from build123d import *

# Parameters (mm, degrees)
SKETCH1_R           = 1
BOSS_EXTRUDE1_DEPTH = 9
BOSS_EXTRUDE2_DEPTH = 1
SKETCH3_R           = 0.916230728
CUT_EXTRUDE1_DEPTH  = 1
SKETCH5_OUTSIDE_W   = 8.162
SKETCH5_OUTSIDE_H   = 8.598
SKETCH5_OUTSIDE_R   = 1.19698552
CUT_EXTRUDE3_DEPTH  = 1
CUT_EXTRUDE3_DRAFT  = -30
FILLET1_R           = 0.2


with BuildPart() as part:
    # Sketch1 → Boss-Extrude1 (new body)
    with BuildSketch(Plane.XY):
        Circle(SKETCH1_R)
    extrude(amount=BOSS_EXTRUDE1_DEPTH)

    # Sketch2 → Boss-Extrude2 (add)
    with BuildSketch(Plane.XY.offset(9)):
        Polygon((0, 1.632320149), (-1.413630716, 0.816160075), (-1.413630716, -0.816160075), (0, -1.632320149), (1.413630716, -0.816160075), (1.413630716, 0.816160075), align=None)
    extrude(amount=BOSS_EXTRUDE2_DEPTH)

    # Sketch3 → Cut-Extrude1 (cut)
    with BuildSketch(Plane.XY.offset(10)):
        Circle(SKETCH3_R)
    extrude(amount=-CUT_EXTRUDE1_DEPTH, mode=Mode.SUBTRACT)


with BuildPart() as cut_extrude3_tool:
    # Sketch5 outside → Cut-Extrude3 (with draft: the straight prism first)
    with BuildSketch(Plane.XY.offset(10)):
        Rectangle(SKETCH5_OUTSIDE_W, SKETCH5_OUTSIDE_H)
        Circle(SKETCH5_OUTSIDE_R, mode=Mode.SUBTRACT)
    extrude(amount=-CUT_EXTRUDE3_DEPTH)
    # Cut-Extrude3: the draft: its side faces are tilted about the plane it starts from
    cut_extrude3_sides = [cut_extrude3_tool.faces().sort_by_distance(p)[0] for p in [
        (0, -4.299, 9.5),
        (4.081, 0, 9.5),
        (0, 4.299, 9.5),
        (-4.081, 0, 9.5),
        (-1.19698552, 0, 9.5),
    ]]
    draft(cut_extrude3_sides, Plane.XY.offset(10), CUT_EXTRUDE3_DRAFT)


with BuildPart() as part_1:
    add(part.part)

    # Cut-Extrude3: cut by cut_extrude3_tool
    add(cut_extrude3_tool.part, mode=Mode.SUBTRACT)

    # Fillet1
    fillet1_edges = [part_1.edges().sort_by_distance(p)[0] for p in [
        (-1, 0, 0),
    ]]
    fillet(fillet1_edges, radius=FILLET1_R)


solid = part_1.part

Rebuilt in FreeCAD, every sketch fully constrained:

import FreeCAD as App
import Part
import Sketcher

V = App.Vector
Q = App.Units.Quantity


def edges_at(feature, points):
    """Names of the edges that pass closest to the given points."""
    edges = feature.Shape.Edges
    near = lambda p: min(range(len(edges)), key=lambda i: edges[i].distToShape(Part.Vertex(*p))[0])
    return sorted({f"Edge{near(p) + 1}" for p in points})


def faces_at(feature, points):
    """Names of the faces that lie closest to the given points."""
    faces = feature.Shape.Faces
    near = lambda p: min(range(len(faces)), key=lambda i: faces[i].distToShape(Part.Vertex(*p))[0])
    return sorted({f"Face{near(p) + 1}" for p in points})

doc = App.newDocument("Part")
body = doc.addObject("PartDesign::Body", "Body")

# Sketch on XY plane
sketch1 = body.newObject("Sketcher::SketchObject", "Sketch")
sketch1.AttachmentSupport = (doc.getObject("XY_Plane"), [""])
sketch1.MapMode = "FlatFace"
sketch1.addGeometry(Part.Circle(V(0, 0, 0), V(0, 0, 1), 1), False)
sketch1.addConstraint(Sketcher.Constraint("Coincident", 0, 3, -1, 1))
sketch1.addConstraint(Sketcher.Constraint("Diameter", 0, Q("2 mm")))
pad1 = body.newObject("PartDesign::Pad", "Pad")
pad1.Profile = sketch1
pad1.Length = 9

# Sketch on XY plane
sketch2 = body.newObject("Sketcher::SketchObject", "Sketch001")
sketch2.AttachmentSupport = (doc.getObject("XY_Plane"), [""])
sketch2.MapMode = "FlatFace"
sketch2.AttachmentOffset = App.Placement(V(0, 0, 9), App.Rotation())
sketch2.addGeometry(Part.LineSegment(V(0, 1.6, 0), V(-1.4, 0.8, 0)), False)
sketch2.addGeometry(Part.LineSegment(V(-1.4, 0.8, 0), V(-1.4, -0.8, 0)), False)
sketch2.addGeometry(Part.LineSegment(V(-1.4, -0.8, 0), V(0, -1.6, 0)), False)
sketch2.addGeometry(Part.LineSegment(V(0, -1.6, 0), V(1.4, -0.8, 0)), False)
sketch2.addGeometry(Part.LineSegment(V(1.4, -0.8, 0), V(1.4, 0.8, 0)), False)
sketch2.addGeometry(Part.LineSegment(V(1.4, 0.8, 0), V(0, 1.6, 0)), False)
sketch2.addConstraint(Sketcher.Constraint("Coincident", 0, 2, 1, 1))
sketch2.addConstraint(Sketcher.Constraint("Coincident", 1, 2, 2, 1))
sketch2.addConstraint(Sketcher.Constraint("Coincident", 2, 2, 3, 1))
sketch2.addConstraint(Sketcher.Constraint("Coincident", 3, 2, 4, 1))
sketch2.addConstraint(Sketcher.Constraint("Coincident", 4, 2, 5, 1))
sketch2.addConstraint(Sketcher.Constraint("Coincident", 5, 2, 0, 1))
sketch2.addConstraint(Sketcher.Constraint("Vertical", 1))
sketch2.addConstraint(Sketcher.Constraint("Vertical", 4))
sketch2.addConstraint(Sketcher.Constraint("Symmetric", 0, 2, 3, 2, -1, 1))
sketch2.addConstraint(Sketcher.Constraint("Symmetric", 2, 2, 5, 2, -1, 1))
sketch2.addConstraint(Sketcher.Constraint("PointOnObject", 2, 2, -2))
sketch2.addConstraint(Sketcher.Constraint("Parallel", 2, 5))
sketch2.addConstraint(Sketcher.Constraint("Horizontal", 1, 2, 3, 2))
sketch2.addConstraint(Sketcher.Constraint("Angle", 0, Q("-150 deg")))
sketch2.addConstraint(Sketcher.Constraint("DistanceY", 1, 2, 1, 1, Q("1.63232 mm")))
sketch2.addConstraint(Sketcher.Constraint("Distance", 0, Q("1.63232 mm")))
pad2 = body.newObject("PartDesign::Pad", "Pad001")
pad2.Profile = sketch2
pad2.Length = 1

# Sketch on XY plane
sketch3 = body.newObject("Sketcher::SketchObject", "Sketch002")
sketch3.AttachmentSupport = (doc.getObject("XY_Plane"), [""])
sketch3.MapMode = "FlatFace"
sketch3.AttachmentOffset = App.Placement(V(0, 0, 10), App.Rotation())
sketch3.addGeometry(Part.Circle(V(0, 0, 0), V(0, 0, 1), 0.9), False)
sketch3.addConstraint(Sketcher.Constraint("Coincident", 0, 3, -1, 1))
sketch3.addConstraint(Sketcher.Constraint("Diameter", 0, Q("1.832461 mm")))
pocket1 = body.newObject("PartDesign::Pocket", "Pocket")
pocket1.Profile = sketch3
pocket1.Length = 1
body2 = doc.addObject("PartDesign::Body", "Body001")

# Sketch on XY plane
sketch4 = body2.newObject("Sketcher::SketchObject", "Sketch003")
sketch4.AttachmentSupport = (doc.getObject("XY_Plane001"), [""])
sketch4.MapMode = "FlatFace"
sketch4.AttachmentOffset = App.Placement(V(0, 0, 10), App.Rotation())
sketch4.addGeometry(Part.LineSegment(V(-4.1, 4.3, 0), V(-4.1, -4.3, 0)), False)
sketch4.addGeometry(Part.LineSegment(V(-4.1, -4.3, 0), V(4.1, -4.3, 0)), False)
sketch4.addGeometry(Part.LineSegment(V(4.1, -4.3, 0), V(4.1, 4.3, 0)), False)
sketch4.addGeometry(Part.LineSegment(V(4.1, 4.3, 0), V(-4.1, 4.3, 0)), False)
sketch4.addGeometry(Part.Circle(V(0, 0, 0), V(0, 0, 1), 1.2), False)
sketch4.addConstraint(Sketcher.Constraint("Coincident", 0, 2, 1, 1))
sketch4.addConstraint(Sketcher.Constraint("Coincident", 1, 2, 2, 1))
sketch4.addConstraint(Sketcher.Constraint("Coincident", 2, 2, 3, 1))
sketch4.addConstraint(Sketcher.Constraint("Coincident", 3, 2, 0, 1))
sketch4.addConstraint(Sketcher.Constraint("Vertical", 0))
sketch4.addConstraint(Sketcher.Constraint("Horizontal", 1))
sketch4.addConstraint(Sketcher.Constraint("Vertical", 2))
sketch4.addConstraint(Sketcher.Constraint("Horizontal", 3))
sketch4.addConstraint(Sketcher.Constraint("Coincident", 4, 3, -1, 1))
sketch4.addConstraint(Sketcher.Constraint("Symmetric", 0, 2, 2, 2, -1, 1))
sketch4.addConstraint(Sketcher.Constraint("Diameter", 4, Q("2.393971 mm")))
sketch4.addConstraint(Sketcher.Constraint("DistanceX", 1, 1, 1, 2, Q("8.162 mm")))
sketch4.addConstraint(Sketcher.Constraint("DistanceY", 0, 2, 0, 1, Q("8.598 mm")))
pad3 = body2.newObject("PartDesign::Pad", "Pad002")
pad3.Profile = sketch4
pad3.Length = 1
pad3.Reversed = True
doc.recompute()

datumplane = body2.newObject("PartDesign::Plane", "DatumPlane")
datumplane.AttachmentSupport = (doc.getObject("XY_Plane001"), [""])
datumplane.MapMode = "FlatFace"
datumplane.AttachmentOffset = App.Placement(V(0, 0, 10), App.Rotation())
draft = body2.newObject("PartDesign::Draft", "Draft")
draft.Base = (pad3, faces_at(pad3, [
    (0, -4.299, 9.5),
    (4.081, 0, 9.5),
    (0, 4.299, 9.5),
    (-4.081, 0, 9.5),
    (-1.197, 0, 9.5),
]))
draft.NeutralPlane = (datumplane, [""])
draft.Angle = 30
draft.Reversed = True
doc.recompute()

boolean = body.newObject("PartDesign::Boolean", "Boolean")
boolean.Type = "Cut"
boolean.addObjects([body2])
doc.recompute()

fillet = body.newObject("PartDesign::Fillet", "Fillet")
fillet.Base = (boolean, edges_at(boolean, [(-1, 0, 0)]))
fillet.Radius = 0.2

doc.recompute()
